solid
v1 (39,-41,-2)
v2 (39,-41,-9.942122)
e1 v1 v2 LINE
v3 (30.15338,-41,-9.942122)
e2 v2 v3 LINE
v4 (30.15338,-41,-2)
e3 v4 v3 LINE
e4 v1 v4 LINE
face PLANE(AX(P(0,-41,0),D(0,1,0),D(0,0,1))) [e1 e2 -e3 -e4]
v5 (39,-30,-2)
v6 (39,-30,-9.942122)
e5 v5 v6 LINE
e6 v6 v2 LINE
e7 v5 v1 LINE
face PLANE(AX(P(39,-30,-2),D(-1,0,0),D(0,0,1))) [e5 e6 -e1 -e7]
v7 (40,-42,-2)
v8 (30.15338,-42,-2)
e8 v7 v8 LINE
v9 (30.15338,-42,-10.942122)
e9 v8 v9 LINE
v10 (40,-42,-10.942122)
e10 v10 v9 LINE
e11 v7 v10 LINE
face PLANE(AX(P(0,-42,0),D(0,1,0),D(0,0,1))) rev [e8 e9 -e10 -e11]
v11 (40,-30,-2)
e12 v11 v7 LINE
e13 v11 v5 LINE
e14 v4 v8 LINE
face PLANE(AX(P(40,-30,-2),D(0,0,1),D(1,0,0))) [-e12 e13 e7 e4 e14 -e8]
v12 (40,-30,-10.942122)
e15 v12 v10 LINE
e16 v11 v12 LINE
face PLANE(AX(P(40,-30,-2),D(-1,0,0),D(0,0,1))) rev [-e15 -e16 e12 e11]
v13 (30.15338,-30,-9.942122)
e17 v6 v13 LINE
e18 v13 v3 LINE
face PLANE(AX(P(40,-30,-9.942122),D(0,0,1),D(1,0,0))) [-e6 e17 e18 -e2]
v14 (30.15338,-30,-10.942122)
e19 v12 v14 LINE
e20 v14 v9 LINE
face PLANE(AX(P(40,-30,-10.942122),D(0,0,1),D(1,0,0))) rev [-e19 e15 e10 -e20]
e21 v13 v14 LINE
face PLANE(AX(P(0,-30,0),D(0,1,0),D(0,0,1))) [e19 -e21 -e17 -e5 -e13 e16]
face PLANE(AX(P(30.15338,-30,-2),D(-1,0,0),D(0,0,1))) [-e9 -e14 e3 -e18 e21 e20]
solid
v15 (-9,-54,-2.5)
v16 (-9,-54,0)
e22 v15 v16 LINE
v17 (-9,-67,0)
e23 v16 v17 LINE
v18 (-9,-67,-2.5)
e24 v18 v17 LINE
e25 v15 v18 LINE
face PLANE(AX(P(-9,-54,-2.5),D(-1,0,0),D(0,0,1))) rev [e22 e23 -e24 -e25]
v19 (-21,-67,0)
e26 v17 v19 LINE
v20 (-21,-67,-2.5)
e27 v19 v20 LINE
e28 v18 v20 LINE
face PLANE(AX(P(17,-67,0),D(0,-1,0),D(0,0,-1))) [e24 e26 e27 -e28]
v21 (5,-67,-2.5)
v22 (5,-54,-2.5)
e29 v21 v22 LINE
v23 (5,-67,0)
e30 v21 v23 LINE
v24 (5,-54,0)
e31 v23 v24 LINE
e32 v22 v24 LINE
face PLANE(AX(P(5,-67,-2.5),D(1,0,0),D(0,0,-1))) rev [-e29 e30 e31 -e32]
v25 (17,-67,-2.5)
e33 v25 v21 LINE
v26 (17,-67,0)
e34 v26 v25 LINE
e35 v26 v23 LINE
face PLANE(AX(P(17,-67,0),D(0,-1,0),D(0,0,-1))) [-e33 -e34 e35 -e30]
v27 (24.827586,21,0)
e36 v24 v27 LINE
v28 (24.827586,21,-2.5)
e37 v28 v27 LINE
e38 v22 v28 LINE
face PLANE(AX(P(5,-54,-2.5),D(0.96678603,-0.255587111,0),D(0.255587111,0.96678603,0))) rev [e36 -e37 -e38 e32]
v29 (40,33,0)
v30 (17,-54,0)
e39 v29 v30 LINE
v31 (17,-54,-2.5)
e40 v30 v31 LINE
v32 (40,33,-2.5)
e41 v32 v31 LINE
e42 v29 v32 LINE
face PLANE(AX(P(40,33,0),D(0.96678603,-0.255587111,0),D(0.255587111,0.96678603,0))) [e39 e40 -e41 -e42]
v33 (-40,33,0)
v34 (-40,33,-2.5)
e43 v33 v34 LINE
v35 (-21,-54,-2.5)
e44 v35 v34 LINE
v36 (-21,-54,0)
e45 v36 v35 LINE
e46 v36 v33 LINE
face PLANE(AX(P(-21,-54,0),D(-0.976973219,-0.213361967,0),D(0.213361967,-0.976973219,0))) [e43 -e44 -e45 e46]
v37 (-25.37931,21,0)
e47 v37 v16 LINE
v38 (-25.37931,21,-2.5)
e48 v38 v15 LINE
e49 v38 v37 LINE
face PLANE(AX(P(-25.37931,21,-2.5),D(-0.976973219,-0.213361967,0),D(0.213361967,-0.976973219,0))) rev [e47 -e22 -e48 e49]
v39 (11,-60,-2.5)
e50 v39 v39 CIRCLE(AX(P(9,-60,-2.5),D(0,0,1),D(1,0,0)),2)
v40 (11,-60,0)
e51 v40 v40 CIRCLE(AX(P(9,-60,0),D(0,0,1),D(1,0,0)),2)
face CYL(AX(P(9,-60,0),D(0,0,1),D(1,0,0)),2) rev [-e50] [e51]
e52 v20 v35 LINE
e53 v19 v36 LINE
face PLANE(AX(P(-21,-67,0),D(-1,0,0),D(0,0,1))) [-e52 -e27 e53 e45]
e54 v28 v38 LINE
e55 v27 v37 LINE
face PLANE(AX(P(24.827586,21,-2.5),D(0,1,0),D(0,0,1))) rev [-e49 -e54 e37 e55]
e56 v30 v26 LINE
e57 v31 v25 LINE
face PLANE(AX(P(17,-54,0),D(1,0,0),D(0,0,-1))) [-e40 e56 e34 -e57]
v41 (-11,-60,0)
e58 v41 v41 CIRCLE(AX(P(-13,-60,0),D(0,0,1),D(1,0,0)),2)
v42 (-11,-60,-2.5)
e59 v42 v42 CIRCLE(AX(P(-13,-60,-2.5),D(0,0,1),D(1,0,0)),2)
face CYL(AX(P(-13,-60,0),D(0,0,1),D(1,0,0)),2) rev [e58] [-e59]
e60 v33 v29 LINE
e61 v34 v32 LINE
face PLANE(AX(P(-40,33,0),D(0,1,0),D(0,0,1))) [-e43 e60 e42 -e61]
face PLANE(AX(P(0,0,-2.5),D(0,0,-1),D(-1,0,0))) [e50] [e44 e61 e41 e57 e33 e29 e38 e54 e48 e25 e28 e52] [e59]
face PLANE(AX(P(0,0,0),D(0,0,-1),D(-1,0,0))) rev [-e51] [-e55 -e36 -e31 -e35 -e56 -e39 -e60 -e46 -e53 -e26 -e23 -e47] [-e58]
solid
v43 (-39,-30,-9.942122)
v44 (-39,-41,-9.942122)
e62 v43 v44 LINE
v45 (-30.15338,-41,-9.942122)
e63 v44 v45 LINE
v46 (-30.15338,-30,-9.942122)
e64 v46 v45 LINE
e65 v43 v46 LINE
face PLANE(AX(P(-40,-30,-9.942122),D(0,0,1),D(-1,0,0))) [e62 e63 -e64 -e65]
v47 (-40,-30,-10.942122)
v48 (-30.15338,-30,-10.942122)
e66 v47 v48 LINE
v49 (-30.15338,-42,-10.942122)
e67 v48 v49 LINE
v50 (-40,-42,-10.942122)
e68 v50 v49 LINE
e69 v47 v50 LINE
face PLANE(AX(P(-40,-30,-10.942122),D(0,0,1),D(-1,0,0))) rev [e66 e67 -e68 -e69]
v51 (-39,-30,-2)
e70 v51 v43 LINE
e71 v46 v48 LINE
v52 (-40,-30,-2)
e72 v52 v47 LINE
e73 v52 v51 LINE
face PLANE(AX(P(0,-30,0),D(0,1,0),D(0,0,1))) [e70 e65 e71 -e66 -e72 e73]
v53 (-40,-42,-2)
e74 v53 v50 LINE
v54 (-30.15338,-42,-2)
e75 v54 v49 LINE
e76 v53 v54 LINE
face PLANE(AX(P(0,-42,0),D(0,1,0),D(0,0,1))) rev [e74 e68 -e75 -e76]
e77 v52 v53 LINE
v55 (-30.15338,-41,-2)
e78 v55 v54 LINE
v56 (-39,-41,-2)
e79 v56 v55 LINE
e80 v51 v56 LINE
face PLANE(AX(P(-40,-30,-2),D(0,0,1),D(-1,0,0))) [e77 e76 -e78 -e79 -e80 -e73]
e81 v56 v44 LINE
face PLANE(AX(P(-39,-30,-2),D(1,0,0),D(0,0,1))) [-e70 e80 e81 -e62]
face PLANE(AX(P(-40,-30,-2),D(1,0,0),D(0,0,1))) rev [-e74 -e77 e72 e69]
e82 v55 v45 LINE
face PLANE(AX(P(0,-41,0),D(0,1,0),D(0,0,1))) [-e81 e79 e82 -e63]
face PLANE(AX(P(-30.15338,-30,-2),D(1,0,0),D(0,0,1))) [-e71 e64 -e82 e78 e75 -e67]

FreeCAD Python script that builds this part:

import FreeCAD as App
import Part
import Sketcher
from FreeCAD import Vector


def faces_at(feature, points):
    """Names of the faces that lie closest to the given points."""
    faces = feature.Shape.Faces
    near = lambda p: min(range(len(faces)), key=lambda i: faces[i].distToShape(Part.Vertex(*p))[0])
    return sorted({f"Face{near(p) + 1}" for p in points})


def add_polygon(sketch, points):
    """Adds a closed chain of lines whose ends are joined by coincident constraints."""
    first, n = sketch.GeometryCount, len(points)
    for a, b in zip(points, points[1:] + points[:1]):
        sketch.addGeometry(Part.LineSegment(App.Vector(*a, 0), App.Vector(*b, 0)), False)
    for i in range(n):
        sketch.addConstraint(Sketcher.Constraint("Coincident", first + i, 2, first + (i + 1) % n, 1))

doc = App.newDocument("Part")
body = doc.addObject("PartDesign::Body", "Body")

# Sketch on XY plane
sketch1 = doc.addObject("Sketcher::SketchObject", "Sketch")
body.addObject(sketch1)
sketch1.AttachmentSupport = (doc.XY_Plane, [""])
sketch1.MapMode = "FlatFace"
sketch1.AttachmentOffset = App.Placement(Vector(0, 0, -2.5), App.Rotation())
add_polygon(sketch1, [(17, -54), (17, -67), (-21, -67), (-21, -54), (-40, 33), (40, 33)])  # lines 0-5
sketch1.addConstraint([
    Sketcher.Constraint("Vertical", 0),
    Sketcher.Constraint("Horizontal", 1),
    Sketcher.Constraint("Vertical", 2),
    Sketcher.Constraint("Horizontal", 4),
    Sketcher.Constraint("Horizontal", 2, 2, 5, 2),
    Sketcher.Constraint("DistanceX", 1, 2, 1, 1, 38.0),
    Sketcher.Constraint("DistanceX", 4, 1, 4, 2, 80.0),
    Sketcher.Constraint("DistanceY", 0, 2, 0, 1, 13.0),
    Sketcher.Constraint("DistanceX", -1, 1, 0, 2, 17.0),
    Sketcher.Constraint("DistanceY", 0, 2, -1, 1, 67.0),
    Sketcher.Constraint("DistanceX", 3, 2, -1, 1, 40.0),
    Sketcher.Constraint("DistanceY", -1, 1, 3, 2, 33.0),
])
pad1 = doc.addObject("PartDesign::Pad", "Pad")
body.addObject(pad1)
pad1.Profile = sketch1
pad1.Length = 2.5

# Sketch on XY plane
sketch2 = doc.addObject("Sketcher::SketchObject", "Sketch001")
body.addObject(sketch2)
sketch2.AttachmentSupport = (doc.XY_Plane, [""])
sketch2.MapMode = "FlatFace"
add_polygon(sketch2, [(-9, -67), (5, -67), (5, -54), (25, 21), (-25, 21), (-9, -54)])  # lines 0-5
sketch2.addConstraint([
    Sketcher.Constraint("Horizontal", 0),
    Sketcher.Constraint("Vertical", 1),
    Sketcher.Constraint("Horizontal", 3),
    Sketcher.Constraint("Vertical", 5),
    Sketcher.Constraint("Horizontal", 1, 2, 4, 2),
    Sketcher.Constraint("DistanceX", 0, 1, 0, 2, 14.0),
    Sketcher.Constraint("DistanceY", 1, 1, 1, 2, 13.0),
    Sketcher.Constraint("DistanceX", -1, 1, 0, 2, 5.0),
    Sketcher.Constraint("DistanceY", 0, 2, -1, 1, 67.0),
    Sketcher.Constraint("DistanceY", -1, 1, 2, 2, 21.0),
    Sketcher.Constraint("DistanceX", 3, 2, 3, 1, 50.206897),
    Sketcher.Constraint("DistanceX", 3, 2, -1, 1, 25.37931),
])
pocket1 = doc.addObject("PartDesign::Pocket", "Pocket")
body.addObject(pocket1)
pocket1.Profile = sketch2
pocket1.Type = "ThroughAll"

# Sketch on XY plane
sketch3 = doc.addObject("Sketcher::SketchObject", "Sketch002")
body.addObject(sketch3)
sketch3.AttachmentSupport = (doc.XY_Plane, [""])
sketch3.MapMode = "FlatFace"
sketch3.addGeometry([
    Part.Circle(Vector(-13, -60, 0), Vector(0, 0, 1), 2),
    Part.Circle(Vector(9, -60, 0), Vector(0, 0, 1), 2),
], False)
sketch3.addConstraint([
    Sketcher.Constraint("Equal", 0, 1),
    Sketcher.Constraint("Horizontal", 0, 3, 1, 3),
    Sketcher.Constraint("Diameter", 0, 4.0),
    Sketcher.Constraint("DistanceX", 0, 3, -1, 1, 13.0),
    Sketcher.Constraint("DistanceY", 0, 3, -1, 1, 60.0),
    Sketcher.Constraint("DistanceX", -1, 1, 1, 3, 9.0),
])
doc.recompute()
hole = doc.addObject("PartDesign::Hole", "Hole")
body.addObject(hole)
hole.Profile = sketch3
hole.ThreadType = "None"
hole.Diameter = 4
hole.DepthType = "Dimension"
hole.Depth = 2.5
hole.DrillPoint = "Flat"
body2 = doc.addObject("PartDesign::Body", "Body001")

# Sketch on XZ plane
sketch4 = doc.addObject("Sketcher::SketchObject", "Sketch003")
body2.addObject(sketch4)
sketch4.AttachmentSupport = (doc.getObject("XZ_Plane001"), [""])
sketch4.MapMode = "FlatFace"
sketch4.AttachmentOffset = App.Placement(Vector(0, 0, 42), App.Rotation())
add_polygon(sketch4, [(30, -11), (30, -2), (40, -2), (40, -11)])  # lines 0-3
sketch4.addConstraint([
    Sketcher.Constraint("Vertical", 0),
    Sketcher.Constraint("Horizontal", 1),
    Sketcher.Constraint("Vertical", 2),
    Sketcher.Constraint("Horizontal", 3),
    Sketcher.Constraint("DistanceY", 0, 2, -1, 1, 2.0),
    Sketcher.Constraint("DistanceX", -1, 1, 1, 2, 40.0),
    Sketcher.Constraint("DistanceX", 1, 1, 1, 2, 9.84662),
    Sketcher.Constraint("DistanceY", 0, 1, 0, 2, 8.942122),
])
pad2 = doc.addObject("PartDesign::Pad", "Pad001")
body2.addObject(pad2)
pad2.Profile = sketch4
pad2.Length = 12
pad2.Reversed = True
doc.recompute()

thickness = doc.addObject("PartDesign::Thickness", "Thickness")
body2.addObject(thickness)
thickness.Base = (pad2, faces_at(pad2, [(35.077, -30, -6.471), (35.077, -36, -2), (30.153, -36, -6.471)]))
thickness.Value = 1
thickness.Reversed = True
thickness.Join = "Intersection"
body3 = doc.addObject("PartDesign::Body", "Body002")
doc.recompute()

mirroring = doc.addObject("Part::Mirroring", "Mirroring")
mirroring.Source = body2
mirroring.Base = Vector(0, 0, 0)
mirroring.Normal = Vector(1, 0, 0)
body3.BaseFeature = mirroring
doc.recompute()
mirroring.Visibility = False

doc.recompute()
